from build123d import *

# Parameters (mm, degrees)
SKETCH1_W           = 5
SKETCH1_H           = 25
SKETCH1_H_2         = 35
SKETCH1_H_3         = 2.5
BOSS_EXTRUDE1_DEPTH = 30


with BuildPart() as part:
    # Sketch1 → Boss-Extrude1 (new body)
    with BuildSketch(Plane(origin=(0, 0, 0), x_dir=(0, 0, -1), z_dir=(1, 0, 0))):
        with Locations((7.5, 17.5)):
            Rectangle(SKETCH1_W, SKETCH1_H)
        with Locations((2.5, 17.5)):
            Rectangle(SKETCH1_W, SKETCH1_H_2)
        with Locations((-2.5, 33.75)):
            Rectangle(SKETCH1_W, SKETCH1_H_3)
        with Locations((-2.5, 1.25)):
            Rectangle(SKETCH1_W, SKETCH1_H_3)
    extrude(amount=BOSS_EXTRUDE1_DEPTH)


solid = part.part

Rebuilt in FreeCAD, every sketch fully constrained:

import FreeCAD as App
import Part
import Sketcher
from FreeCAD import Vector

doc = App.newDocument("Part")
body = doc.addObject("PartDesign::Body", "Body")

# Sketch on YZ plane
sketch1 = body.newObject("Sketcher::SketchObject", "Sketch")
sketch1.AttachmentSupport = (doc.getObject("YZ_Plane"), [""])
sketch1.MapMode = "FlatFace"
sketch1.addGeometry([
    Part.LineSegment(Vector(5, -5, 0), Vector(5, -10, 0)),  # 0
    Part.LineSegment(Vector(5, -10, 0), Vector(30, -10, 0)),  # 1
    Part.LineSegment(Vector(30, -10, 0), Vector(30, -5, 0)),  # 2
    Part.LineSegment(Vector(30, -5, 0), Vector(35, -5, 0)),  # 3
    Part.LineSegment(Vector(35, -5, 0), Vector(35, 5, 0)),  # 4
    Part.LineSegment(Vector(35, 5, 0), Vector(32.5, 5, 0)),  # 5
    Part.LineSegment(Vector(32.5, 5, 0), Vector(32.5, 0, 0)),  # 6
    Part.LineSegment(Vector(32.5, 0, 0), Vector(2.5, 0, 0)),  # 7
    Part.LineSegment(Vector(2.5, 0, 0), Vector(2.5, 5, 0)),  # 8
    Part.LineSegment(Vector(2.5, 5, 0), Vector(0, 5, 0)),  # 9
    Part.LineSegment(Vector(0, 5, 0), Vector(0, -5, 0)),  # 10
    Part.LineSegment(Vector(0, -5, 0), Vector(5, -5, 0)),  # 11
], False)
sketch1.addConstraint([
    Sketcher.Constraint("Coincident", 0, 2, 1, 1),
    Sketcher.Constraint("Coincident", 1, 2, 2, 1),
    Sketcher.Constraint("Coincident", 2, 2, 3, 1),
    Sketcher.Constraint("Coincident", 3, 2, 4, 1),
    Sketcher.Constraint("Coincident", 4, 2, 5, 1),
    Sketcher.Constraint("Coincident", 5, 2, 6, 1),
    Sketcher.Constraint("Coincident", 6, 2, 7, 1),
    Sketcher.Constraint("Coincident", 7, 2, 8, 1),
    Sketcher.Constraint("Coincident", 8, 2, 9, 1),
    Sketcher.Constraint("Coincident", 9, 2, 10, 1),
    Sketcher.Constraint("Coincident", 10, 2, 11, 1),
    Sketcher.Constraint("Coincident", 11, 2, 0, 1),
    Sketcher.Constraint("Vertical", 0),
    Sketcher.Constraint("Horizontal", 1),
    Sketcher.Constraint("Vertical", 2),
    Sketcher.Constraint("Horizontal", 3),
    Sketcher.Constraint("Vertical", 4),
    Sketcher.Constraint("Horizontal", 5),
    Sketcher.Constraint("Vertical", 6),
    Sketcher.Constraint("Horizontal", 7),
    Sketcher.Constraint("Vertical", 8),
    Sketcher.Constraint("Horizontal", 9),
    Sketcher.Constraint("Vertical", 10),
    Sketcher.Constraint("Horizontal", 11),
    Sketcher.Constraint("Symmetric", 9, 2, 10, 2, -1, 1),
    Sketcher.Constraint("PointOnObject", 6, 2, -1),
    Sketcher.Constraint("Horizontal", 5, 2, 8, 2),
    Sketcher.Constraint("Horizontal", 3, 2, 10, 2),
    Sketcher.Constraint("Equal", 5, 9),
    Sketcher.Constraint("Equal", 3, 11),
    Sketcher.Constraint("Equal", 11, 0),
    Sketcher.Constraint("Equal", 2, 6),
    Sketcher.Constraint("DistanceX", 1, 1, 1, 2, 25.0),
    Sketcher.Constraint("DistanceX", 3, 1, 3, 2, 5.0),
    Sketcher.Constraint("DistanceX", 7, 2, 7, 1, 30.0),
])
pad1 = body.newObject("PartDesign::Pad", "Pad")
pad1.Profile = sketch1
pad1.Length = 30

doc.recompute()
